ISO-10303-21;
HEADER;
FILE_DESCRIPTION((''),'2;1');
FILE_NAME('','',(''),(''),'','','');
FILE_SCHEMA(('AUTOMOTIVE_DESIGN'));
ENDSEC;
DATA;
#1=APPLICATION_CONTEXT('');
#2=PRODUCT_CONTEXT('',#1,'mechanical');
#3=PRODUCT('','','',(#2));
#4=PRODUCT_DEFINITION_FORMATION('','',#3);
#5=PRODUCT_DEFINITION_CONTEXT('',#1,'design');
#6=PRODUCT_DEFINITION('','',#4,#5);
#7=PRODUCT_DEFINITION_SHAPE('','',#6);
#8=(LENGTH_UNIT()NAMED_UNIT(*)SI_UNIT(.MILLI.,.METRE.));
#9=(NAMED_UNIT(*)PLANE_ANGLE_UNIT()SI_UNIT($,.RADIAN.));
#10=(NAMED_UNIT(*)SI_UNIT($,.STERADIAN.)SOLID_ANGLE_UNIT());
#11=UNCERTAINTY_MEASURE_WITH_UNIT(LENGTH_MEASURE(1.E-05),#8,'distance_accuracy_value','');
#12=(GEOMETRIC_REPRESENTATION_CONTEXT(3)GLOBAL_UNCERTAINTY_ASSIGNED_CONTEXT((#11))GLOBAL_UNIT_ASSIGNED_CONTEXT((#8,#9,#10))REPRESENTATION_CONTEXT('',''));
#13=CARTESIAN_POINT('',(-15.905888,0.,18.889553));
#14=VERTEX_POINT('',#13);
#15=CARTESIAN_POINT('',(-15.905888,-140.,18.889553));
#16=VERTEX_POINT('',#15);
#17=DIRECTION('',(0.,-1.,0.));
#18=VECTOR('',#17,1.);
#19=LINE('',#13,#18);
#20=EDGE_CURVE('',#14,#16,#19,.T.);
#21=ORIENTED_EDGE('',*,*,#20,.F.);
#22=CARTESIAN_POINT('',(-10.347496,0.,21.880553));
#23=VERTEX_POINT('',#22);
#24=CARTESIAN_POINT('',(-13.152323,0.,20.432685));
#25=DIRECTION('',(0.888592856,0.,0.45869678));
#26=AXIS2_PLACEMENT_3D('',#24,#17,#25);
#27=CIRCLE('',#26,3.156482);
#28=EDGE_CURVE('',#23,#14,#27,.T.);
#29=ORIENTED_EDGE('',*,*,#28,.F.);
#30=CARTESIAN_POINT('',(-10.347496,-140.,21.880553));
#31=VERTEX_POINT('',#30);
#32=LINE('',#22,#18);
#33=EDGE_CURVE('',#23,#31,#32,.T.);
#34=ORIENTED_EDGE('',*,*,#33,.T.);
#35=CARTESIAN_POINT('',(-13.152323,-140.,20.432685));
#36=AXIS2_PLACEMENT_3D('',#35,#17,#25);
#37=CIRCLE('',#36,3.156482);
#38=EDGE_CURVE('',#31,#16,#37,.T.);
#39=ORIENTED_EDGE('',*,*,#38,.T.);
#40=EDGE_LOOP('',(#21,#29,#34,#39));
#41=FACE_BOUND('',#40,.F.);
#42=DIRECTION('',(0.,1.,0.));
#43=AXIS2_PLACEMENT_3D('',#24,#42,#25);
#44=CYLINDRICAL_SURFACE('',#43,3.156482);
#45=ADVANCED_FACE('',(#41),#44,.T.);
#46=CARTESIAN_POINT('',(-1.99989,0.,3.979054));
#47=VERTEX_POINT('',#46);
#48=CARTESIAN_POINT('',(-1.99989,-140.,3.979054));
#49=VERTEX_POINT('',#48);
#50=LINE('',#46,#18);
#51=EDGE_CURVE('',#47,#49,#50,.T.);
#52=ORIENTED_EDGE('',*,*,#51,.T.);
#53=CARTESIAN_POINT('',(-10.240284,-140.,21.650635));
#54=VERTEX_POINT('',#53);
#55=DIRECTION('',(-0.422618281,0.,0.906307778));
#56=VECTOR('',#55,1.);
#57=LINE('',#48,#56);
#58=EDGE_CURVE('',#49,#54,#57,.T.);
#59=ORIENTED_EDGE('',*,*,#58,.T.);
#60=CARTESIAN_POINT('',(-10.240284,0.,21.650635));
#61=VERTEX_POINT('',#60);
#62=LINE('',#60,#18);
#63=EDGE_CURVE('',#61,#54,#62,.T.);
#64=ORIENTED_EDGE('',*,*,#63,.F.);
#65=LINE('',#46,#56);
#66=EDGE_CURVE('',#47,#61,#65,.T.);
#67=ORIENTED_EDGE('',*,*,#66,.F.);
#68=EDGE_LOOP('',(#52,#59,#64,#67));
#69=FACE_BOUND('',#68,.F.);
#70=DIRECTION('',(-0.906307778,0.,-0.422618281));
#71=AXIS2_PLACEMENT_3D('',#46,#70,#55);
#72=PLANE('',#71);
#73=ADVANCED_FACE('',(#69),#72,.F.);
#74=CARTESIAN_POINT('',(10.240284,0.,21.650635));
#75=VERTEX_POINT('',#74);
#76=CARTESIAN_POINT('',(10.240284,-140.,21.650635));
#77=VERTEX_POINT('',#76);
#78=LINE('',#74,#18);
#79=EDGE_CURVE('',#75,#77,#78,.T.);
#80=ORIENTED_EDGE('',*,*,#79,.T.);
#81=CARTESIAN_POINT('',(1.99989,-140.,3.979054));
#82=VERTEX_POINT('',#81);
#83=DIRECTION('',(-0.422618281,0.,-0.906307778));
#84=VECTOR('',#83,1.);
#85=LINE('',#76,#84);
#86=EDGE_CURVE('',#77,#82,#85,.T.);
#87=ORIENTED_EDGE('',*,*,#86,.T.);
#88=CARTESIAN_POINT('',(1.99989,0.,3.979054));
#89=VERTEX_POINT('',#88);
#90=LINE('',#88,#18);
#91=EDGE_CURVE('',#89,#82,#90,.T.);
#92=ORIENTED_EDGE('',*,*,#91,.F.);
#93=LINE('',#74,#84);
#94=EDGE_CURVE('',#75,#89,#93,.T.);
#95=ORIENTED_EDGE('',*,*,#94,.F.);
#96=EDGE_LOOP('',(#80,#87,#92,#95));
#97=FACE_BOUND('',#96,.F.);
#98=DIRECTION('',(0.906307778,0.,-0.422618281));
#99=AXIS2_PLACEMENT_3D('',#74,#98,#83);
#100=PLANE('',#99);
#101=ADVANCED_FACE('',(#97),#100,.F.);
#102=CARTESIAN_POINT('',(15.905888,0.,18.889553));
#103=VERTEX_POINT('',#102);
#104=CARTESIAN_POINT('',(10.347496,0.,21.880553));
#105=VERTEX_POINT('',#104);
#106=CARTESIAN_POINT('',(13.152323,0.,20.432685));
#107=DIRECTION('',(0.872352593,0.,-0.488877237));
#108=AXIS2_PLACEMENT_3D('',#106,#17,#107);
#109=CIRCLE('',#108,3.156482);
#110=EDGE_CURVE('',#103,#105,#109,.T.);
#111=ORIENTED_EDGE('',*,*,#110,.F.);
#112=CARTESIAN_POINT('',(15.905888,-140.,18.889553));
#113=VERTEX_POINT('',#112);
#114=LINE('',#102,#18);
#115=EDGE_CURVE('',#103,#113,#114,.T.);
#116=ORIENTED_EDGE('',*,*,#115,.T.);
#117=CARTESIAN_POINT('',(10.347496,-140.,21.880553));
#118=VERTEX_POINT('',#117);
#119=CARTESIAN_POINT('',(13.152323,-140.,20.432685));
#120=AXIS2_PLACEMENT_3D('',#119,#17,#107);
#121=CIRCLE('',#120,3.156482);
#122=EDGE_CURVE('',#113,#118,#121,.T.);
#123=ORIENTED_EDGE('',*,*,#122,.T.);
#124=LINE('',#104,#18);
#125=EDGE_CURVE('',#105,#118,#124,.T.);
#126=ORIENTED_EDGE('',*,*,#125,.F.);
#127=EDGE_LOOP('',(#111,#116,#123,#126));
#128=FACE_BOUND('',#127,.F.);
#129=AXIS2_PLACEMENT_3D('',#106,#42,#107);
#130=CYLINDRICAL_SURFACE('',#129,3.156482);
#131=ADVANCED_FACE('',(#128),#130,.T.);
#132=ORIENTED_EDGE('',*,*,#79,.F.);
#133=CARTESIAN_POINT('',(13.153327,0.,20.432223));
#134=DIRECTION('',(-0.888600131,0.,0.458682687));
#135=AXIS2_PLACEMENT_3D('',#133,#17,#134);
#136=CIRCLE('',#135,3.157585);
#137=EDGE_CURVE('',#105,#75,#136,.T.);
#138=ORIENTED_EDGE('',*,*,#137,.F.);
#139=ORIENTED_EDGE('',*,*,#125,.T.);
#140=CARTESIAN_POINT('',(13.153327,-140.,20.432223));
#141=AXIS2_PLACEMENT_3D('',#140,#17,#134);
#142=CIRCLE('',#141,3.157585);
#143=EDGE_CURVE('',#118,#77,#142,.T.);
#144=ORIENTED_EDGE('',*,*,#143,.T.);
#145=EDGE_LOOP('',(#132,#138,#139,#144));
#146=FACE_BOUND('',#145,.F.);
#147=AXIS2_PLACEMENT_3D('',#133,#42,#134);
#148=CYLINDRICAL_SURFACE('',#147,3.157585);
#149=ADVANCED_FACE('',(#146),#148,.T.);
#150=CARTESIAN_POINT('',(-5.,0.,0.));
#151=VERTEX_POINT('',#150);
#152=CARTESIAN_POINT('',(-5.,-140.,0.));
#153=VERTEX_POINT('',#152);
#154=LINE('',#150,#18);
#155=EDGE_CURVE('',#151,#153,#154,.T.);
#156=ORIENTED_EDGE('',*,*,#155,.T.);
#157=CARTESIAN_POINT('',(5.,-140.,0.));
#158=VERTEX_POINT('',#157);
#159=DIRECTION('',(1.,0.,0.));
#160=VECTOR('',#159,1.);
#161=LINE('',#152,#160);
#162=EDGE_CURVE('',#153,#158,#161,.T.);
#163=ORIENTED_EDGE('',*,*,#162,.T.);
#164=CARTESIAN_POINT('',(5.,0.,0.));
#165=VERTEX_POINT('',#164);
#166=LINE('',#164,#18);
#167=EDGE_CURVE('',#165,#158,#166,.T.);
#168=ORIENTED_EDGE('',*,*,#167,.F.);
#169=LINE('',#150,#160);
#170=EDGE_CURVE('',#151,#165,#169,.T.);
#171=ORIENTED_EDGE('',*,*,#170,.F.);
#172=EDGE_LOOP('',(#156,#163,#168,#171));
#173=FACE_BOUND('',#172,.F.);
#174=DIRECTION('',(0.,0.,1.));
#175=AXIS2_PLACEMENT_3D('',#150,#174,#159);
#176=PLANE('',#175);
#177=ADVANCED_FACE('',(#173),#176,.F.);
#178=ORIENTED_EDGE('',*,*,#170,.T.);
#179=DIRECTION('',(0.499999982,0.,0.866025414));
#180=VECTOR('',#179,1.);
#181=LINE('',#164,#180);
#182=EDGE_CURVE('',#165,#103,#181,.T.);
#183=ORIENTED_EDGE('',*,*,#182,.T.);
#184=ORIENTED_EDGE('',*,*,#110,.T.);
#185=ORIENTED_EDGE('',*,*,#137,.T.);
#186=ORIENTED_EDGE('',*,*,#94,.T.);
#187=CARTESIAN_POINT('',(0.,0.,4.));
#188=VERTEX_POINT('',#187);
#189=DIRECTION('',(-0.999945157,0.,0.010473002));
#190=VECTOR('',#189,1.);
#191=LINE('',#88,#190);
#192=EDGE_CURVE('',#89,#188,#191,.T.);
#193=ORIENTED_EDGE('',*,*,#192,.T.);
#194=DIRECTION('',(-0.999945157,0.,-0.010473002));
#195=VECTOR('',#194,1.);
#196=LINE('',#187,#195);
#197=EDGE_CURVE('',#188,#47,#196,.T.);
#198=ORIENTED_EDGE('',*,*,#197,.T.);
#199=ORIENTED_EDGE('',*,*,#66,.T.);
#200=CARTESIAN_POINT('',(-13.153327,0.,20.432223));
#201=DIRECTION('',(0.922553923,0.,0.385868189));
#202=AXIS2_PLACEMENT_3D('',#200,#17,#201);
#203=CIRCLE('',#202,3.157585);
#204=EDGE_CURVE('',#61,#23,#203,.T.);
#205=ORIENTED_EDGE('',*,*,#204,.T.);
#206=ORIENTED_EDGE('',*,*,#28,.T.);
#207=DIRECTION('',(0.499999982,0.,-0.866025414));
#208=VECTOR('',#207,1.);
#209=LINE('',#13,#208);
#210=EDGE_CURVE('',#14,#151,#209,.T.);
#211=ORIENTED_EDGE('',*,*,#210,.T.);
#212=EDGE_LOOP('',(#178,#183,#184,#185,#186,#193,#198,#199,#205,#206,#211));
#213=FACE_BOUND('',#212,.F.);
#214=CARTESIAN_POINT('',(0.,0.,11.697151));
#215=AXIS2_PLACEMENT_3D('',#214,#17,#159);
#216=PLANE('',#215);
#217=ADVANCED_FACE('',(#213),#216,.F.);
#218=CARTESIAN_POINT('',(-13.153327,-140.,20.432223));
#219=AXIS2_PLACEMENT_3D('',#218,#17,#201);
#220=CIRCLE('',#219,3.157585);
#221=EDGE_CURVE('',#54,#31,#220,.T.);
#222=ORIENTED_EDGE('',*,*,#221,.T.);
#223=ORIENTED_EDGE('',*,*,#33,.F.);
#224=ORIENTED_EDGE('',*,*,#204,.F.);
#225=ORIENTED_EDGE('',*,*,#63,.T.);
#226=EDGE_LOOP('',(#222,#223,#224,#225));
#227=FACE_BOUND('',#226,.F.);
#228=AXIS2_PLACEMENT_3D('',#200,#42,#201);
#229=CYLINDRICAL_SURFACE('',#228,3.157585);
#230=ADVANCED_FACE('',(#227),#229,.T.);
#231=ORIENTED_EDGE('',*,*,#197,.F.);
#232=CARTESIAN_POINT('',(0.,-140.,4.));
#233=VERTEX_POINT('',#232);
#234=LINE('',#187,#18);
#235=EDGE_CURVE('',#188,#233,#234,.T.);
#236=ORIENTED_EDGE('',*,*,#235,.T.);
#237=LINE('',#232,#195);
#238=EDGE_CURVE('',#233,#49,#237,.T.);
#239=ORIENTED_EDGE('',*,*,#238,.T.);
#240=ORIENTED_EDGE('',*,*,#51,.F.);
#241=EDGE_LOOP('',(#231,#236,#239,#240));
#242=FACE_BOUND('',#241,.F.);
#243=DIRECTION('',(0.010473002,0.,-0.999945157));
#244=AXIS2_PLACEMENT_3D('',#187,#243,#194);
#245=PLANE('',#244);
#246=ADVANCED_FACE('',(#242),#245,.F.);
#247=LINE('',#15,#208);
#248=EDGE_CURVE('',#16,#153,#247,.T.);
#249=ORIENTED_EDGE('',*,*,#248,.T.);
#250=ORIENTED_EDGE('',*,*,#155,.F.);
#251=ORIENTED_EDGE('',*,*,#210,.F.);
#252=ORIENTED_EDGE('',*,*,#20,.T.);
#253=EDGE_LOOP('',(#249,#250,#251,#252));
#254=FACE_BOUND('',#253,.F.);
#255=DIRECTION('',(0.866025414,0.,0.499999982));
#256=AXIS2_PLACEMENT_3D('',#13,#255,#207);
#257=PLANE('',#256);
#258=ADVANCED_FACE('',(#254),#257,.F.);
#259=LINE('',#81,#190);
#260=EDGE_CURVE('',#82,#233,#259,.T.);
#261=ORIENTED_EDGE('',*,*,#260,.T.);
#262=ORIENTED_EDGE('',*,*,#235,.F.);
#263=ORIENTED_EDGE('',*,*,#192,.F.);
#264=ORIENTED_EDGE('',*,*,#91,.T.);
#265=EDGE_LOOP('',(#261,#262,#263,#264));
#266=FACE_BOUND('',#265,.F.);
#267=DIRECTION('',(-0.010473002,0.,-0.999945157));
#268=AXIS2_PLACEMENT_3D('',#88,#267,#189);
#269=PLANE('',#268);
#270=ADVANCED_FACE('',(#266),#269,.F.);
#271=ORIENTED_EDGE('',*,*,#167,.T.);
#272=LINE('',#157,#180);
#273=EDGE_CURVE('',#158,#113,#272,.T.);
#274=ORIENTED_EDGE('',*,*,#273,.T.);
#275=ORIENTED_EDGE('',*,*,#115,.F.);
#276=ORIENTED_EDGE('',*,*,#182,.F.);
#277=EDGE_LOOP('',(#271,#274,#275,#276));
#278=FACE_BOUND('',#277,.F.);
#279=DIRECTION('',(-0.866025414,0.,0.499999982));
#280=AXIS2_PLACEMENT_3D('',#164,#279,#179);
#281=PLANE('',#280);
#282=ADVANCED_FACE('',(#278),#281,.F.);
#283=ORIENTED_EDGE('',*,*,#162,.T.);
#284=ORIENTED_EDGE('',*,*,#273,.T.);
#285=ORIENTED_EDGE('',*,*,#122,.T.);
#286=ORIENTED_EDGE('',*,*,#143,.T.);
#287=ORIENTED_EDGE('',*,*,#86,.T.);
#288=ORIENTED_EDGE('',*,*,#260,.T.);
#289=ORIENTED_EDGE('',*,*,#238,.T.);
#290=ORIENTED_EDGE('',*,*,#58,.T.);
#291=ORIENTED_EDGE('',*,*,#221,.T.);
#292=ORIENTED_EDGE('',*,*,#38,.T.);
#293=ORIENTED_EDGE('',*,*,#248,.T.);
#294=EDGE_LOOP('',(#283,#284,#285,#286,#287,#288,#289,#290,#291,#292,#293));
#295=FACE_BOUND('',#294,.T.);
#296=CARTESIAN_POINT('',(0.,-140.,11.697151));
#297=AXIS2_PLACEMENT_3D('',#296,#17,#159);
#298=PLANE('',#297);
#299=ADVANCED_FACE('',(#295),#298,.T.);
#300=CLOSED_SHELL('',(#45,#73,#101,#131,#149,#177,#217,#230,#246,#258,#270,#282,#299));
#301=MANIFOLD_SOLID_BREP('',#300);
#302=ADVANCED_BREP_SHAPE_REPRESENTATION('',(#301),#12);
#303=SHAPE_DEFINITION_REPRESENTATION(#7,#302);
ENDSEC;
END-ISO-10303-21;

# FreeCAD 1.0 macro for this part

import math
import FreeCAD as App
import Part
import Sketcher
from FreeCAD import Vector
Q = App.Units.Quantity

doc = App.newDocument("Part")
body = doc.addObject("PartDesign::Body", "Body")

# Sketch on XZ plane
sketch1 = body.newObject("Sketcher::SketchObject", "Sketch")
sketch1.AttachmentSupport = (doc.getObject("XZ_Plane"), [""])
sketch1.MapMode = "FlatFace"
sketch1.addGeometry(Part.LineSegment(Vector(-5, 0, 0), Vector(5, 0, 0)), False)
sketch1.addGeometry(Part.LineSegment(Vector(5, 0, 0), Vector(15.91, 18.89, 0)), False)
sketch1.addGeometry(Part.ArcOfCircle(Part.Circle(Vector(13.15, 20.43, 0), Vector(0, 0, 1), 3.16), math.radians(-29), math.radians(153)), False)
sketch1.addGeometry(Part.ArcOfCircle(Part.Circle(Vector(13.15, 20.43, 0), Vector(0, 0, 1), 3.16), math.radians(152.7), math.radians(157.3)), False)
sketch1.addGeometry(Part.LineSegment(Vector(10.24, 21.65, 0), Vector(2, 3.98, 0)), False)
sketch1.addGeometry(Part.LineSegment(Vector(2, 3.98, 0), Vector(0, 4, 0)), False)
sketch1.addGeometry(Part.LineSegment(Vector(0, 4, 0), Vector(-2, 3.98, 0)), False)
sketch1.addGeometry(Part.LineSegment(Vector(-2, 3.98, 0), Vector(-10.24, 21.65, 0)), False)
sketch1.addGeometry(Part.ArcOfCircle(Part.Circle(Vector(-13.15, 20.43, 0), Vector(0, 0, 1), 3.16), math.radians(22.7), math.radians(27.3)), False)
sketch1.addGeometry(Part.ArcOfCircle(Part.Circle(Vector(-13.15, 20.43, 0), Vector(0, 0, 1), 3.16), math.radians(27), math.radians(209)), False)
sketch1.addGeometry(Part.LineSegment(Vector(-15.91, 18.89, 0), Vector(-5, 0, 0)), False)
sketch1.addConstraint(Sketcher.Constraint("Coincident", 0, 2, 1, 1))
sketch1.addConstraint(Sketcher.Constraint("Coincident", 1, 2, 2, 1))
sketch1.addConstraint(Sketcher.Constraint("Coincident", 2, 2, 3, 1))
sketch1.addConstraint(Sketcher.Constraint("Coincident", 3, 2, 4, 1))
sketch1.addConstraint(Sketcher.Constraint("Coincident", 4, 2, 5, 1))
sketch1.addConstraint(Sketcher.Constraint("Coincident", 5, 2, 6, 1))
sketch1.addConstraint(Sketcher.Constraint("Coincident", 6, 2, 7, 1))
sketch1.addConstraint(Sketcher.Constraint("Coincident", 7, 2, 8, 1))
sketch1.addConstraint(Sketcher.Constraint("Coincident", 8, 2, 9, 1))
sketch1.addConstraint(Sketcher.Constraint("Coincident", 9, 2, 10, 1))
sketch1.addConstraint(Sketcher.Constraint("Coincident", 10, 2, 0, 1))
sketch1.addConstraint(Sketcher.Constraint("Horizontal", 0))
sketch1.addConstraint(Sketcher.Constraint("Equal", 3, 8))
sketch1.addConstraint(Sketcher.Constraint("Equal", 2, 9))
sketch1.addConstraint(Sketcher.Constraint("Symmetric", 0, 2, 10, 2, -1, 1))
sketch1.addConstraint(Sketcher.Constraint("Symmetric", 3, 3, 8, 3, -2))
sketch1.addConstraint(Sketcher.Constraint("Symmetric", 4, 2, 6, 2, -2))
sketch1.addConstraint(Sketcher.Constraint("Symmetric", 1, 2, 9, 2, -2))
sketch1.addConstraint(Sketcher.Constraint("PointOnObject", 5, 2, -2))
sketch1.addConstraint(Sketcher.Constraint("Horizontal", 3, 2, 7, 2))
sketch1.addConstraint(Sketcher.Constraint("Horizontal", 2, 2, 8, 2))
sketch1.addConstraint(Sketcher.Constraint("DistanceX", 0, 1, 0, 2, Q("10 mm")))
sketch1.addConstraint(Sketcher.Constraint("Angle", 1, Q("60.000001 deg")))
sketch1.addConstraint(Sketcher.Constraint("Angle", 4, Q("-115.000001 deg")))
sketch1.addConstraint(Sketcher.Constraint("Distance", 5, Q("2 mm")))
sketch1.addConstraint(Sketcher.Constraint("DistanceY", -1, 1, 5, 2, Q("4 mm")))
sketch1.addConstraint(Sketcher.Constraint("Radius", 2, Q("3.156482 mm")))
sketch1.addConstraint(Sketcher.Constraint("Radius", 3, Q("3.157585 mm")))
sketch1.addConstraint(Sketcher.Constraint("DistanceY", 1, 2, 2, 2, Q("2.991 mm")))
sketch1.addConstraint(Sketcher.Constraint("DistanceX", 9, 2, 6, 2, Q("13.905998 mm")))
sketch1.addConstraint(Sketcher.Constraint("DistanceY", 4, 2, 2, 2, Q("17.901499 mm")))
sketch1.addConstraint(Sketcher.Constraint("DistanceY", 3, 3, 2, 3, Q("0.000462 mm")))
sketch1.addConstraint(Sketcher.Constraint("DistanceX", 8, 3, 2, 3, Q("26.30565 mm")))
pad1 = body.newObject("PartDesign::Pad", "Pad")
pad1.Profile = sketch1
pad1.Length = 140

doc.recompute()
